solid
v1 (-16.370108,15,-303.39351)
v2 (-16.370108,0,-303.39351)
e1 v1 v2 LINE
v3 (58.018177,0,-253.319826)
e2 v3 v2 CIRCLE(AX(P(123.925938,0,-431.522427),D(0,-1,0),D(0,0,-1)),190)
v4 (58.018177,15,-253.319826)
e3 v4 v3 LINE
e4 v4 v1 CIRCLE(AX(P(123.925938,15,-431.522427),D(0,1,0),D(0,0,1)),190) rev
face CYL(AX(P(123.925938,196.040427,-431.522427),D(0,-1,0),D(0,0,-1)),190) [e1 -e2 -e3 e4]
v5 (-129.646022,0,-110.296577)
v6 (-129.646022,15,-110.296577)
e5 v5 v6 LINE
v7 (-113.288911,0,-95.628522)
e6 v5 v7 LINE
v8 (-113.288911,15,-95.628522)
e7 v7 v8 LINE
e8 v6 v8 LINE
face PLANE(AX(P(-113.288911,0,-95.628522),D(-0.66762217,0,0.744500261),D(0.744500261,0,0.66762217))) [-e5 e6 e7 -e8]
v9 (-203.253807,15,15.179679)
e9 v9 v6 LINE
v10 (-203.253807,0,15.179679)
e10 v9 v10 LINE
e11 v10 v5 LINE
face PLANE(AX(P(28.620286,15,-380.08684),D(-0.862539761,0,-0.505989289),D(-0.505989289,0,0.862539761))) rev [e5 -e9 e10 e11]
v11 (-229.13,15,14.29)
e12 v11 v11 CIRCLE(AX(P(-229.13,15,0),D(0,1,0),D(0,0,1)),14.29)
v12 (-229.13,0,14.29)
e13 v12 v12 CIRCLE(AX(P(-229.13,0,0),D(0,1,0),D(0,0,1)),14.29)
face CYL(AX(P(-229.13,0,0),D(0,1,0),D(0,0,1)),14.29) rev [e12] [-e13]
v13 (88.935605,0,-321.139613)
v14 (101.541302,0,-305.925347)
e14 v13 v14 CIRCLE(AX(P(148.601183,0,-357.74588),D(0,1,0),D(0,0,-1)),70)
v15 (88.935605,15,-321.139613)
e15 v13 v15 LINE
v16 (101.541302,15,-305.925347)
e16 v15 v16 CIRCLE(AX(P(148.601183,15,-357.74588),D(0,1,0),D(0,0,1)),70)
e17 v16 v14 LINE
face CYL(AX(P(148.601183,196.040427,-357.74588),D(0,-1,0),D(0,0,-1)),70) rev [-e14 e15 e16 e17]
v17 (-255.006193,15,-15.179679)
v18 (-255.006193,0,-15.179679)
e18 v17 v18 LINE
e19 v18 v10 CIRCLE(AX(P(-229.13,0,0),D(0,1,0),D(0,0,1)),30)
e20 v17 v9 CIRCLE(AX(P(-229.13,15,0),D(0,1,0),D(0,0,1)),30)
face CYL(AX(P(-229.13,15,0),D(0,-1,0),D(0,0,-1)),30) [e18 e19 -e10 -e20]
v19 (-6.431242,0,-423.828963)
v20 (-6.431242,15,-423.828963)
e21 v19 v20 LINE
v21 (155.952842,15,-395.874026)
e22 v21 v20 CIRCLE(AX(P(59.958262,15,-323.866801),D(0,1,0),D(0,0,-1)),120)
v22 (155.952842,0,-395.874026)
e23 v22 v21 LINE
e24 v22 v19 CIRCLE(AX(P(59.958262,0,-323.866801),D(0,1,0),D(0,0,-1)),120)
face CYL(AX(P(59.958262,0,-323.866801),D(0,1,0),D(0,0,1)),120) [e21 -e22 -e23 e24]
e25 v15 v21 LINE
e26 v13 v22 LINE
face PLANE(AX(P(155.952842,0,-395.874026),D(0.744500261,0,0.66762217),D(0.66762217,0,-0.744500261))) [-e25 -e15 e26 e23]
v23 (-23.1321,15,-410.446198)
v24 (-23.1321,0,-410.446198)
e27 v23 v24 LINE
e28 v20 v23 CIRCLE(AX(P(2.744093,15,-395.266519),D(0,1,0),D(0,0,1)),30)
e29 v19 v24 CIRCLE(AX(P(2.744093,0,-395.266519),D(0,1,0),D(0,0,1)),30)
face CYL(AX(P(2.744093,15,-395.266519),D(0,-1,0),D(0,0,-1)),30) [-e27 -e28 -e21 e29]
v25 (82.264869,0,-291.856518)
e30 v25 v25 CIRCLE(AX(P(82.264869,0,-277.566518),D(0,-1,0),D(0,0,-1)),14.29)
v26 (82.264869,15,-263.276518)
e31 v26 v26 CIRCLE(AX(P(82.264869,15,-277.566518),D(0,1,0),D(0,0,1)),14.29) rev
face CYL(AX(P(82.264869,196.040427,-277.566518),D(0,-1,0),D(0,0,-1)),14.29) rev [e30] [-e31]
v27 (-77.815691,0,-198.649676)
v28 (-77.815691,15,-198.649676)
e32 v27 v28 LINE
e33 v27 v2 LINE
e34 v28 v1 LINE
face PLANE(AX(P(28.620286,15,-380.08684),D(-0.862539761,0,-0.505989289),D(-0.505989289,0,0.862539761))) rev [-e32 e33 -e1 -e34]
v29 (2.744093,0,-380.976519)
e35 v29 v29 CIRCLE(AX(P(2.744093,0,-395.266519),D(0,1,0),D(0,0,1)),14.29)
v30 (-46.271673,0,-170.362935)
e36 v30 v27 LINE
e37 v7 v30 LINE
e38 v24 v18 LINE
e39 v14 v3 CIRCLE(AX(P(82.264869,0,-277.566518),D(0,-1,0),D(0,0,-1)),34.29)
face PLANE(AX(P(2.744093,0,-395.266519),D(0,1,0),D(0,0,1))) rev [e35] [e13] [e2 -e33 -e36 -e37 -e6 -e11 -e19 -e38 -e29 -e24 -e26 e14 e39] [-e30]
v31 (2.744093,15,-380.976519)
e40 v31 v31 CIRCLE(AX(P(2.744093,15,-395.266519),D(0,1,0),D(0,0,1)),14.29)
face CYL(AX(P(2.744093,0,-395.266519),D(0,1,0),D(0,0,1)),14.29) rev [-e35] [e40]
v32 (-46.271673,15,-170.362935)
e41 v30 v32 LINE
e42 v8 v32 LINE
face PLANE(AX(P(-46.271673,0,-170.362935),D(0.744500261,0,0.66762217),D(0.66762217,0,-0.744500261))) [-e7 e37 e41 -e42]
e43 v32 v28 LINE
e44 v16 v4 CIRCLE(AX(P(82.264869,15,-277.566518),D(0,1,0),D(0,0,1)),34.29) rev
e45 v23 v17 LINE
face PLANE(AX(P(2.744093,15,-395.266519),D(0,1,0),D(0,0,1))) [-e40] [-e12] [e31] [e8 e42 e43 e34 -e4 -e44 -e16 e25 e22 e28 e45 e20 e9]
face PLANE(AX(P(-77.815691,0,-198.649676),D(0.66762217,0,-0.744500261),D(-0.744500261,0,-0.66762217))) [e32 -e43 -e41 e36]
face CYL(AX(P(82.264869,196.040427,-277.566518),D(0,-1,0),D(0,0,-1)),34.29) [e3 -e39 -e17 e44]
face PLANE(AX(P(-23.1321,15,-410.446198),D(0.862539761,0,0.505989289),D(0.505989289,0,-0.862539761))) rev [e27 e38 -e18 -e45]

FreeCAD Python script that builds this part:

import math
import FreeCAD as App
import Part
import Sketcher


def add_polygon(sketch, points):
    """Adds a closed chain of lines whose ends are joined by coincident constraints."""
    first, n = sketch.GeometryCount, len(points)
    for a, b in zip(points, points[1:] + points[:1]):
        sketch.addGeometry(Part.LineSegment(App.Vector(*a, 0), App.Vector(*b, 0)), False)
    for i in range(n):
        sketch.addConstraint(Sketcher.Constraint("Coincident", first + i, 2, first + (i + 1) % n, 1))

doc = App.newDocument("Part")
body = doc.addObject("PartDesign::Body", "Body")

# Sketch on XZ plane
sketch1 = doc.addObject("Sketcher::SketchObject", "Sketch")
body.addObject(sketch1)
sketch1.AttachmentSupport = (doc.XZ_Plane, [""])
sketch1.MapMode = "FlatFace"
sketch1.addGeometry([
    Part.LineSegment(App.Vector(-203.253807, 15.179679, 0), App.Vector(28.620286, -380.08684, 0)),
    Part.ArcOfCircle(Part.Circle(App.Vector(2.744093, -395.266519, 0), App.Vector(0, 0, 1), 30), math.radians(-149.602954), math.radians(30.397046)),
    Part.LineSegment(App.Vector(-23.1321, -410.446198, 0), App.Vector(-255.006193, -15.179679, 0)),
    Part.ArcOfCircle(Part.Circle(App.Vector(-229.13, 0, 0), App.Vector(0, 0, 1), 30), math.radians(30.397046), math.radians(210.397046)),
], False)
sketch1.addConstraint([
    Sketcher.Constraint("Tangent", 0, 2, 1, 2),
    Sketcher.Constraint("Tangent", 1, 1, 2, 1),
    Sketcher.Constraint("Tangent", 2, 2, 3, 2),
    Sketcher.Constraint("Tangent", 3, 1, 0, 1),
    Sketcher.Constraint("Equal", 1, 3),
    Sketcher.Constraint("PointOnObject", 3, 3, -1),
    Sketcher.Constraint("Radius", 1, 30.0),
    Sketcher.Constraint("DistanceX", 3, 3, -1, 1, 229.13),
    Sketcher.Constraint("DistanceX", 1, 1, -1, 1, 23.1321),
    Sketcher.Constraint("DistanceY", 1, 3, -1, 1, 395.266519),
])
pad1 = doc.addObject("PartDesign::Pad", "Pad")
body.addObject(pad1)
pad1.Profile = sketch1
pad1.Length = 15
pad1.Reversed = True

# Sketch on XZ plane
sketch2 = doc.addObject("Sketcher::SketchObject", "Sketch001")
body.addObject(sketch2)
sketch2.AttachmentSupport = (doc.XZ_Plane, [""])
sketch2.MapMode = "FlatFace"
sketch2.AttachmentOffset = App.Placement(App.Vector(0, 0, -15), App.Rotation())
sketch2.addGeometry([
    Part.Circle(App.Vector(-229.13, 0, 0), App.Vector(0, 0, 1), 14.29),
    Part.Circle(App.Vector(2.744093, -395.266519, 0), App.Vector(0, 0, 1), 14.29),
], False)
sketch2.addConstraint([
    Sketcher.Constraint("Equal", 0, 1),
    Sketcher.Constraint("PointOnObject", 0, 3, -1),
    Sketcher.Constraint("Diameter", 0, 28.58),
    Sketcher.Constraint("DistanceX", 0, 3, -1, 1, 229.13),
    Sketcher.Constraint("DistanceY", 1, 3, -1, 1, 395.266519),
    Sketcher.Constraint("DistanceX", -1, 1, 1, 3, 2.744093),
])
pocket1 = doc.addObject("PartDesign::Pocket", "Pocket")
body.addObject(pocket1)
pocket1.Profile = sketch2
pocket1.Type = "ThroughAll"
pocket1.Reversed = True

# Sketch on XZ plane
sketch3 = doc.addObject("Sketcher::SketchObject", "Sketch002")
body.addObject(sketch3)
sketch3.AttachmentSupport = (doc.XZ_Plane, [""])
sketch3.MapMode = "FlatFace"
sketch3.AttachmentOffset = App.Placement(App.Vector(0, 0, -15), App.Rotation())
add_polygon(sketch3, [(-129.646022, -110.296577), (-113.288911, -95.628522), (-46.271673, -170.362935), (-77.815691, -198.649676)])  # lines 0-3
sketch3.addConstraint([
    Sketcher.Constraint("Perpendicular", 0, 1),
    Sketcher.Constraint("Perpendicular", 1, 2),
    Sketcher.Constraint("DistanceY", 2, 2, 3, 2, 88.353099),
    Sketcher.Constraint("DistanceX", 0, 2, -1, 1, 113.288911),
    Sketcher.Constraint("DistanceY", 0, 2, -1, 1, 95.628522),
    Sketcher.Constraint("DistanceX", 2, 2, -1, 1, 77.815691),
    Sketcher.Constraint("DistanceX", 2, 2, 1, 2, 31.544018),
    Sketcher.Constraint("DistanceY", 2, 2, 1, 2, 28.286741),
])
pad2 = doc.addObject("PartDesign::Pad", "Pad001")
body.addObject(pad2)
pad2.Profile = sketch3
pad2.Length = 15

# Sketch on XZ plane
sketch4 = doc.addObject("Sketcher::SketchObject", "Sketch003")
body.addObject(sketch4)
sketch4.AttachmentSupport = (doc.XZ_Plane, [""])
sketch4.MapMode = "FlatFace"
sketch4.AttachmentOffset = App.Placement(App.Vector(0, 0, -15), App.Rotation())
sketch4.addGeometry([
    Part.LineSegment(App.Vector(88.935605, -321.139613, 0), App.Vector(155.952842, -395.874026, 0)),  # 0
    Part.ArcOfCircle(Part.Circle(App.Vector(59.958262, -323.866801, 0), App.Vector(0, 0, 1), 120), math.radians(-123.589979), math.radians(-36.87421)),  # 1
    Part.ArcOfCircle(Part.Circle(App.Vector(2.744093, -395.266519, 0), App.Vector(0, 0, 1), 30), math.radians(-149.602954), math.radians(-107.808978)),  # 2
    Part.LineSegment(App.Vector(-23.1321, -410.446198, 0), App.Vector(17.093708, -410.446198, 0)),  # 3
    Part.LineSegment(App.Vector(17.093708, -410.446198, 0), App.Vector(21.614506, -387.987304, 0)),  # 4
    Part.LineSegment(App.Vector(21.614506, -387.987304, 0), App.Vector(11.459303, -350.833197, 0)),  # 5
    Part.ArcOfCircle(Part.Circle(App.Vector(21.614506, -261.407966, 0), App.Vector(0, 0, 1), 90), math.radians(-96.478801), math.radians(-41.581519)),  # 6
], False)
sketch4.addConstraint([
    Sketcher.Constraint("Coincident", 0, 2, 1, 2),
    Sketcher.Constraint("Coincident", 1, 1, 2, 2),
    Sketcher.Constraint("Coincident", 2, 1, 3, 1),
    Sketcher.Constraint("Coincident", 3, 2, 4, 1),
    Sketcher.Constraint("Coincident", 4, 2, 5, 1),
    Sketcher.Constraint("Coincident", 5, 2, 6, 1),
    Sketcher.Constraint("Coincident", 6, 2, 0, 1),
    Sketcher.Constraint("Horizontal", 3),
    Sketcher.Constraint("Vertical", 6, 3, 4, 2),
    Sketcher.Constraint("Radius", 1, 120.0),
    Sketcher.Constraint("Radius", 2, 30.0),
    Sketcher.Constraint("Radius", 6, 90.0),
    Sketcher.Constraint("DistanceY", 3, 2, 5, 2, 59.613001),
    Sketcher.Constraint("DistanceY", 1, 3, -1, 1, 323.866801),
    Sketcher.Constraint("DistanceX", 2, 1, -1, 1, 23.1321),
    Sketcher.Constraint("DistanceX", 5, 2, 6, 2, 77.476302),
    Sketcher.Constraint("DistanceX", 6, 3, 6, 2, 67.321099),
    Sketcher.Constraint("DistanceX", 3, 1, 3, 2, 40.225808),
    Sketcher.Constraint("DistanceX", -1, 1, 1, 3, 59.958262),
    Sketcher.Constraint("DistanceY", 2, 3, -1, 1, 395.266519),
    Sketcher.Constraint("DistanceX", 2, 3, 1, 3, 57.214168),
    Sketcher.Constraint("DistanceX", 1, 3, 0, 2, 95.994581),
    Sketcher.Constraint("DistanceY", 1, 1, 4, 2, 35.841659),
    Sketcher.Constraint("DistanceX", 2, 3, 5, 2, 8.71521),
])
pad3 = doc.addObject("PartDesign::Pad", "Pad002")
body.addObject(pad3)
pad3.Profile = sketch4
pad3.Length = 15

# Sketch on XZ plane
sketch5 = doc.addObject("Sketcher::SketchObject", "Sketch004")
body.addObject(sketch5)
sketch5.AttachmentSupport = (doc.XZ_Plane, [""])
sketch5.MapMode = "FlatFace"
sketch5.addGeometry([
    Part.LineSegment(App.Vector(-16.370108, -303.39351, 0), App.Vector(7.03175, -366.185372, 0)),  # 0
    Part.LineSegment(App.Vector(7.03175, -366.185372, 0), App.Vector(88.935605, -345.894949, 0)),  # 1
    Part.LineSegment(App.Vector(88.935605, -345.894949, 0), App.Vector(88.935605, -321.139613, 0)),  # 2
    Part.ArcOfCircle(Part.Circle(App.Vector(148.601183, -357.74588, 0), App.Vector(0, 0, 1), 70), math.radians(132.243592), math.radians(148.469884)),  # 3
    Part.ArcOfCircle(Part.Circle(App.Vector(82.264869, -277.566518, 0), App.Vector(0, 0, 1), 34.29), math.radians(-55.794759), math.radians(135)),  # 4
    Part.ArcOfCircle(Part.Circle(App.Vector(123.925938, -431.522427, 0), App.Vector(0, 0, 1), 190), math.radians(110.296781), math.radians(137.595318)),  # 5
    Part.Circle(App.Vector(82.264869, -277.566518, 0), App.Vector(0, 0, 1), 14.29),  # 6
], False)
sketch5.addConstraint([
    Sketcher.Constraint("Coincident", 0, 2, 1, 1),
    Sketcher.Constraint("Coincident", 1, 2, 2, 1),
    Sketcher.Constraint("Coincident", 2, 2, 3, 2),
    Sketcher.Constraint("Coincident", 3, 1, 4, 1),
    Sketcher.Constraint("Coincident", 4, 2, 5, 1),
    Sketcher.Constraint("Coincident", 5, 2, 0, 1),
    Sketcher.Constraint("Vertical", 2),
    Sketcher.Constraint("Coincident", 6, 3, 4, 3),
    Sketcher.Constraint("Radius", 3, 70.0),
    Sketcher.Constraint("Radius", 5, 190.0),
    Sketcher.Constraint("Diameter", 6, 28.58),
    Sketcher.Constraint("Radius", 4, 34.29),
    Sketcher.Constraint("Distance", 0, 67.010932),
    Sketcher.Constraint("DistanceY", 2, 1, 2, 2, 24.755336),
    Sketcher.Constraint("DistanceY", 3, 3, -1, 1, 357.74588),
    Sketcher.Constraint("DistanceX", -1, 1, 4, 3, 82.264869),
    Sketcher.Constraint("DistanceX", -1, 1, 0, 2, 7.03175),
    Sketcher.Constraint("DistanceY", 1, 2, -1, 1, 345.894949),
    Sketcher.Constraint("DistanceX", 5, 2, -1, 1, 16.370108),
    Sketcher.Constraint("DistanceY", 5, 2, -1, 1, 303.39351),
    Sketcher.Constraint("DistanceX", 4, 3, 5, 3, 41.661069),
    Sketcher.Constraint("DistanceY", 5, 3, 4, 3, 153.95591),
    Sketcher.Constraint("DistanceY", 3, 1, 4, 3, 28.35883),
])
pad4 = doc.addObject("PartDesign::Pad", "Pad003")
body.addObject(pad4)
pad4.Profile = sketch5
pad4.Length = 15
pad4.Reversed = True

doc.recompute()
